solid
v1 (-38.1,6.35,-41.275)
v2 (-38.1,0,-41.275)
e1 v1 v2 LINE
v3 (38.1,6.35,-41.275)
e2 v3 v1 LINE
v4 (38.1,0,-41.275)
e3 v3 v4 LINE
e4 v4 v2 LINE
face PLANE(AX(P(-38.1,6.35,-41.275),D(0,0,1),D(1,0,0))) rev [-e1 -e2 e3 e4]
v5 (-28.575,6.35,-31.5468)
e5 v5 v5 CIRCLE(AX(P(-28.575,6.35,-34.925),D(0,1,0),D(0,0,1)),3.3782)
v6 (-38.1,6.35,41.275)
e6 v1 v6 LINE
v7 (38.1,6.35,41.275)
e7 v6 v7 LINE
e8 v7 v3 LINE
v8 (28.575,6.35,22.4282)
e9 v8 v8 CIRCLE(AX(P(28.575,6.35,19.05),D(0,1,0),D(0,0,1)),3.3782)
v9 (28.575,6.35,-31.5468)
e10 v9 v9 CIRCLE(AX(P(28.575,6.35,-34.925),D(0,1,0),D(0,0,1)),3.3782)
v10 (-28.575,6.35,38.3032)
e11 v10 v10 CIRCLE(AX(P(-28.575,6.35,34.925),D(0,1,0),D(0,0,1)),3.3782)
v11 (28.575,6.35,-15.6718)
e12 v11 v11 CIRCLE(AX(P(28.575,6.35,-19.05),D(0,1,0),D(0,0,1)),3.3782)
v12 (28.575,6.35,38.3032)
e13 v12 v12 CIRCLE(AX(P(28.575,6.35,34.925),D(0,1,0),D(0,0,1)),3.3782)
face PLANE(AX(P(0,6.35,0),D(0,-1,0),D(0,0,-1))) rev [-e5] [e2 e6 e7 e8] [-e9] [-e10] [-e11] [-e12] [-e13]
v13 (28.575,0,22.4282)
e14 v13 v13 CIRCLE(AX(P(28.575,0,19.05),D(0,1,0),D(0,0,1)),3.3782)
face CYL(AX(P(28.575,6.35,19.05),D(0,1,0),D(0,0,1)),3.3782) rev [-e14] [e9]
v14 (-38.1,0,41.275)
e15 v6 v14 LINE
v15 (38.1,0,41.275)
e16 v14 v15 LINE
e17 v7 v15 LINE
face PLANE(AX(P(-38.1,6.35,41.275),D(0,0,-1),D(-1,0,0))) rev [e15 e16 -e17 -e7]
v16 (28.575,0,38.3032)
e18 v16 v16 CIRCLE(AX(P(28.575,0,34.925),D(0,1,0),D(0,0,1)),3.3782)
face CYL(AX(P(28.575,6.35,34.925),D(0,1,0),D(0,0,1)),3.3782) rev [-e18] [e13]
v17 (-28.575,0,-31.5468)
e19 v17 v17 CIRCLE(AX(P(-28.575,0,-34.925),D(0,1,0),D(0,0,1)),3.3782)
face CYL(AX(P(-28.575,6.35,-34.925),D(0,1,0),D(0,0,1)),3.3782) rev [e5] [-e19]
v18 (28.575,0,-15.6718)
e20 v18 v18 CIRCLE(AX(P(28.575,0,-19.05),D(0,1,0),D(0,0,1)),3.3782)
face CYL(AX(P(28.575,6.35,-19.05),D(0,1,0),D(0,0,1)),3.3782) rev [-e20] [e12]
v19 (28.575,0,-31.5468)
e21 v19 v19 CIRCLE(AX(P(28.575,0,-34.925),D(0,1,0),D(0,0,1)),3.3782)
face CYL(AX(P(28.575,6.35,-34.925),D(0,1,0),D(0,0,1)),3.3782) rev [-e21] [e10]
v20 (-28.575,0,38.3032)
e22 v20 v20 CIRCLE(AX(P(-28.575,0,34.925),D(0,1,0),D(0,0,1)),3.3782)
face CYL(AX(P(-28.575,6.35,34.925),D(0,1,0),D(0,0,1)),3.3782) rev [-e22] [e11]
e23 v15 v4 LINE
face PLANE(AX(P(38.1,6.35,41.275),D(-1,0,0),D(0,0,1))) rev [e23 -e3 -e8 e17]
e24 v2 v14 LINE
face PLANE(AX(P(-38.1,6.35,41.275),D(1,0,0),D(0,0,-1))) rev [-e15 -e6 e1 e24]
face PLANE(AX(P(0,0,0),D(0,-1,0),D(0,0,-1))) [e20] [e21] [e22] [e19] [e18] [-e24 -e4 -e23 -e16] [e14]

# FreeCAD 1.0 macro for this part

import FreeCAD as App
import Part
import Sketcher

V = App.Vector
Q = App.Units.Quantity

doc = App.newDocument("Part")
body = doc.addObject("PartDesign::Body", "Body")

sketch1 = body.newObject("Sketcher::SketchObject", "Sketch")
sketch1.AttachmentSupport = (doc.getObject("XZ_Plane"), [""])
sketch1.MapMode = "FlatFace"
sketch1.addGeometry([
    Part.LineSegment(V(-38, -41, 0), V(-38, 41, 0)),
    Part.LineSegment(V(-38, 41, 0), V(38, 41, 0)),
    Part.LineSegment(V(38, 41, 0), V(38, -41, 0)),
    Part.LineSegment(V(38, -41, 0), V(-38, -41, 0)),
], False)
sketch1.addConstraint([
    Sketcher.Constraint("Coincident", 0, 2, 1, 1),
    Sketcher.Constraint("Coincident", 1, 2, 2, 1),
    Sketcher.Constraint("Coincident", 2, 2, 3, 1),
    Sketcher.Constraint("Coincident", 3, 2, 0, 1),
    Sketcher.Constraint("Vertical", 0),
    Sketcher.Constraint("Horizontal", 1),
    Sketcher.Constraint("Vertical", 2),
    Sketcher.Constraint("Horizontal", 3),
    Sketcher.Constraint("Symmetric", 0, 2, 2, 2, -1, 1),
    Sketcher.Constraint("DistanceX", 1, 1, 1, 2, Q("3 in")),
    Sketcher.Constraint("DistanceY", 0, 1, 0, 2, Q("3.25 in")),
])
pad1 = body.newObject("PartDesign::Pad", "Pad")
pad1.Profile = sketch1
pad1.Length = Q("0.25 in")
pad1.Reversed = True

sketch2 = body.newObject("Sketcher::SketchObject", "Sketch001")
sketch2.AttachmentSupport = (doc.getObject("XZ_Plane"), [""])
sketch2.MapMode = "FlatFace"
sketch2.AttachmentOffset = App.Placement(V(0, 0, -0.25 * 25.4), App.Rotation())
sketch2.addGeometry([
    Part.Circle(V(-28.6, -34.9, 0), V(0, 0, 1), 3.4),
    Part.Circle(V(28.6, -34.9, 0), V(0, 0, 1), 3.4),
    Part.Circle(V(28.6, -19.1, 0), V(0, 0, 1), 3.4),
    Part.Circle(V(28.6, 19.1, 0), V(0, 0, 1), 3.4),
    Part.Circle(V(-28.6, 34.9, 0), V(0, 0, 1), 3.4),
    Part.Circle(V(28.6, 34.9, 0), V(0, 0, 1), 3.4),
], False)
sketch2.addConstraint([
    Sketcher.Constraint("Equal", 0, 1),
    Sketcher.Constraint("Equal", 1, 2),
    Sketcher.Constraint("Equal", 2, 3),
    Sketcher.Constraint("Equal", 3, 4),
    Sketcher.Constraint("Equal", 4, 5),
    Sketcher.Constraint("Symmetric", 1, 3, 4, 3, -1, 1),
    Sketcher.Constraint("Symmetric", 0, 3, 5, 3, -1, 1),
    Sketcher.Constraint("Symmetric", 0, 3, 1, 3, -2),
    Sketcher.Constraint("Symmetric", 2, 3, 3, 3, -1),
    Sketcher.Constraint("Vertical", 1, 3, 2, 3),
    Sketcher.Constraint("Diameter", 0, Q("0.266 in")),
    Sketcher.Constraint("DistanceY", 2, 3, 3, 3, Q("1.5 in")),
    Sketcher.Constraint("DistanceX", 0, 3, 1, 3, Q("2.25 in")),
    Sketcher.Constraint("DistanceY", 0, 3, 4, 3, Q("2.75 in")),
])
doc.recompute()
hole = body.newObject("PartDesign::Hole", "Hole")
hole.Profile = sketch2
hole.ThreadType = "None"
hole.Diameter = Q("0.266 in")
hole.DepthType = "ThroughAll"
hole.Reversed = True

doc.recompute()
